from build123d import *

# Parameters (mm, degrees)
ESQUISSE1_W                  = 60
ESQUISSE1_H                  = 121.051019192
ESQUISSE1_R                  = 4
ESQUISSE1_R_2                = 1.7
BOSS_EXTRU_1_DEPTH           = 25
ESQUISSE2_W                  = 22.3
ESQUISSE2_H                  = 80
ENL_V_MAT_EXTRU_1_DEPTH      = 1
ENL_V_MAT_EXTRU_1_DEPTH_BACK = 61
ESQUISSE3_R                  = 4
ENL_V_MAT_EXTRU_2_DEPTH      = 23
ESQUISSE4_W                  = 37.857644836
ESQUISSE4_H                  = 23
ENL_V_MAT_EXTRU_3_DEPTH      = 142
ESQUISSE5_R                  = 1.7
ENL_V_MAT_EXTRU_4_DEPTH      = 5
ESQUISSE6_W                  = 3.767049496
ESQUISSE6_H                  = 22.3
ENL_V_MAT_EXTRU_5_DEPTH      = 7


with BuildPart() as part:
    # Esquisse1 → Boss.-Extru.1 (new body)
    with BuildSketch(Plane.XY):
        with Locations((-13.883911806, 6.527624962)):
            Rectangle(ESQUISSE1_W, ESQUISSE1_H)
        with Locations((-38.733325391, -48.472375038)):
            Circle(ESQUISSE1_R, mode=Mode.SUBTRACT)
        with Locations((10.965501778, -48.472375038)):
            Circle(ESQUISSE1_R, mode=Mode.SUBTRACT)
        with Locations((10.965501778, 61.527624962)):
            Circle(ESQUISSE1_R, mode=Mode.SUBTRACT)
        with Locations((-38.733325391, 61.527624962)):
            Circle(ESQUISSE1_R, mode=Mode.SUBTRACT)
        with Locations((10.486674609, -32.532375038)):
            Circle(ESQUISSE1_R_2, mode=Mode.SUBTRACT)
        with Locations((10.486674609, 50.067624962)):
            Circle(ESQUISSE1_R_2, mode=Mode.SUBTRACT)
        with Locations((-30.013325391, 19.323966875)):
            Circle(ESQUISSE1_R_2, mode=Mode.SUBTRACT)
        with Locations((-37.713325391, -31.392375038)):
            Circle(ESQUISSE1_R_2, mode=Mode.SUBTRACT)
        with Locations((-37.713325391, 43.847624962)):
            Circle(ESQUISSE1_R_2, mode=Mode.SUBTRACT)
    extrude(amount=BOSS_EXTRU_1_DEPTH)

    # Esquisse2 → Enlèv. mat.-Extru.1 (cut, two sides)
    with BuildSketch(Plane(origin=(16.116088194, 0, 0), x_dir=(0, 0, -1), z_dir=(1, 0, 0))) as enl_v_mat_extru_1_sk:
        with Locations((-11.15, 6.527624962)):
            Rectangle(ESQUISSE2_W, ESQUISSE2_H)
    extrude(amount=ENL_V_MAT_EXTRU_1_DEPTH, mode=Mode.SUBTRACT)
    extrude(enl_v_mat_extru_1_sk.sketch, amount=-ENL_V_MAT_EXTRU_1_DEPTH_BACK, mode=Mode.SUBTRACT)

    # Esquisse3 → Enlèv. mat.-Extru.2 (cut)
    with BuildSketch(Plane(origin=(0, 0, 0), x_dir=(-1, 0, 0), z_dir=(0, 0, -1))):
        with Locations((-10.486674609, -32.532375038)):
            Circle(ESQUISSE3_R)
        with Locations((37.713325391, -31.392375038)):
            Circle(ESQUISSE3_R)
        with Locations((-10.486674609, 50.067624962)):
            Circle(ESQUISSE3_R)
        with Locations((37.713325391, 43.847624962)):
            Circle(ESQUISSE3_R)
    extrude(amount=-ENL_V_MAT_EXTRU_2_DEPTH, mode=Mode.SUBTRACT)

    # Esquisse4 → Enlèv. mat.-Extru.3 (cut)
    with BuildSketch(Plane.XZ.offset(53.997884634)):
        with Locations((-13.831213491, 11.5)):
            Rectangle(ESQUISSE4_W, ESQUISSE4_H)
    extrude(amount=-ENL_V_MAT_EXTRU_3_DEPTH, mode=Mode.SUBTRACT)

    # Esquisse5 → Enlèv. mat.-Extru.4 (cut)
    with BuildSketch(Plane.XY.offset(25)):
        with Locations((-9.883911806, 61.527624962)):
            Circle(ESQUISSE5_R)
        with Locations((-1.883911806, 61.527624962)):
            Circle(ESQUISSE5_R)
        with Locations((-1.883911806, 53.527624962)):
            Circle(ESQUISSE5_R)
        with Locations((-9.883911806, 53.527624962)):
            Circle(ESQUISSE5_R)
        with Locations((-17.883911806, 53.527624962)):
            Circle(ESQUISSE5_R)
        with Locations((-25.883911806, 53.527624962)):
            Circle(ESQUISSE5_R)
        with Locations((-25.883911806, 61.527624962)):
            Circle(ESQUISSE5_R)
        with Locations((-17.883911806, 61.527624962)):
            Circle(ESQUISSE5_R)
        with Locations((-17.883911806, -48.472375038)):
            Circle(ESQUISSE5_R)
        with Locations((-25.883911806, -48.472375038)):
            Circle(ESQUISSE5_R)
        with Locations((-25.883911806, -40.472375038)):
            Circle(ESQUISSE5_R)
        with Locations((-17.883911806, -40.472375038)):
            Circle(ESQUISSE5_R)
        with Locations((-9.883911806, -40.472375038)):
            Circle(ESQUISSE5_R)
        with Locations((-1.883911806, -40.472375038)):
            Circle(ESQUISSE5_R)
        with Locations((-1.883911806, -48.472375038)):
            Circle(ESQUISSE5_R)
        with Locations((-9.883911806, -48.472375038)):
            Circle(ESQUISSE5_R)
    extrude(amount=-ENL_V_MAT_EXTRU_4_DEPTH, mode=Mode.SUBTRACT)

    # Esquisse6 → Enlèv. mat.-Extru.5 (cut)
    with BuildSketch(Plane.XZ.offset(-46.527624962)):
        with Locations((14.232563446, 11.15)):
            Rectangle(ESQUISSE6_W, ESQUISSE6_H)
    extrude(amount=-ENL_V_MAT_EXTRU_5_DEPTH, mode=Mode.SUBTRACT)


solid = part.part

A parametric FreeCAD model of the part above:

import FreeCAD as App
import Part
import Sketcher
Q = App.Units.Quantity


def add_polygon(sketch, points):
    """Adds a closed chain of lines whose ends are joined by coincident constraints."""
    first, n = sketch.GeometryCount, len(points)
    for a, b in zip(points, points[1:] + points[:1]):
        sketch.addGeometry(Part.LineSegment(App.Vector(*a, 0), App.Vector(*b, 0)), False)
    for i in range(n):
        sketch.addConstraint(Sketcher.Constraint("Coincident", first + i, 2, first + (i + 1) % n, 1))

doc = App.newDocument("Part")
body = doc.addObject("PartDesign::Body", "Body")

# Sketch on XY plane
sketch1 = body.newObject("Sketcher::SketchObject", "Sketch")
sketch1.AttachmentSupport = (doc.getObject("XY_Plane"), [""])
sketch1.MapMode = "FlatFace"
add_polygon(sketch1, [(-43.9, 67.1), (-43.9, -54), (16.1, -54), (16.1, 67.1)])  # lines 0-3
sketch1.addGeometry(Part.Circle(App.Vector(-38.7, -48.5, 0), App.Vector(0, 0, 1), 4), False)  # 4
sketch1.addGeometry(Part.Circle(App.Vector(-37.7, -31.4, 0), App.Vector(0, 0, 1), 1.7), False)  # 5
sketch1.addGeometry(Part.Circle(App.Vector(11, -48.5, 0), App.Vector(0, 0, 1), 4), False)  # 6
sketch1.addGeometry(Part.Circle(App.Vector(10.5, -32.5, 0), App.Vector(0, 0, 1), 1.7), False)  # 7
sketch1.addGeometry(Part.Circle(App.Vector(-30, 19.3, 0), App.Vector(0, 0, 1), 1.7), False)  # 8
sketch1.addGeometry(Part.Circle(App.Vector(-37.7, 43.8, 0), App.Vector(0, 0, 1), 1.7), False)  # 9
sketch1.addGeometry(Part.Circle(App.Vector(-38.7, 61.5, 0), App.Vector(0, 0, 1), 4), False)  # 10
sketch1.addGeometry(Part.Circle(App.Vector(10.5, 50.1, 0), App.Vector(0, 0, 1), 1.7), False)  # 11
sketch1.addGeometry(Part.Circle(App.Vector(11, 61.5, 0), App.Vector(0, 0, 1), 4), False)  # 12
sketch1.addConstraint(Sketcher.Constraint("Vertical", 0))
sketch1.addConstraint(Sketcher.Constraint("Horizontal", 1))
sketch1.addConstraint(Sketcher.Constraint("Vertical", 2))
sketch1.addConstraint(Sketcher.Constraint("Horizontal", 3))
sketch1.addConstraint(Sketcher.Constraint("Equal", 4, 6))
sketch1.addConstraint(Sketcher.Constraint("Equal", 5, 7))
sketch1.addConstraint(Sketcher.Constraint("Equal", 7, 8))
sketch1.addConstraint(Sketcher.Constraint("Equal", 8, 9))
sketch1.addConstraint(Sketcher.Constraint("Equal", 6, 10))
sketch1.addConstraint(Sketcher.Constraint("Equal", 9, 11))
sketch1.addConstraint(Sketcher.Constraint("Equal", 10, 12))
sketch1.addConstraint(Sketcher.Constraint("Horizontal", 4, 3, 6, 3))
sketch1.addConstraint(Sketcher.Constraint("Horizontal", 10, 3, 12, 3))
sketch1.addConstraint(Sketcher.Constraint("Vertical", 5, 3, 9, 3))
sketch1.addConstraint(Sketcher.Constraint("Vertical", 4, 3, 10, 3))
sketch1.addConstraint(Sketcher.Constraint("Vertical", 7, 3, 11, 3))
sketch1.addConstraint(Sketcher.Constraint("Vertical", 6, 3, 12, 3))
sketch1.addConstraint(Sketcher.Constraint("Diameter", 4, Q("8 mm")))
sketch1.addConstraint(Sketcher.Constraint("Diameter", 5, Q("3.4 mm")))
sketch1.addConstraint(Sketcher.Constraint("DistanceX", 1, 1, 1, 2, Q("60 mm")))
sketch1.addConstraint(Sketcher.Constraint("DistanceY", 4, 3, 10, 3, Q("110 mm")))
sketch1.addConstraint(Sketcher.Constraint("DistanceX", 5, 3, 7, 3, Q("48.2 mm")))
sketch1.addConstraint(Sketcher.Constraint("DistanceX", 5, 3, 8, 3, Q("7.7 mm")))
sketch1.addConstraint(Sketcher.Constraint("DistanceY", 7, 3, 11, 3, Q("82.6 mm")))
sketch1.addConstraint(Sketcher.Constraint("DistanceX", 4, 3, 5, 3, Q("1.02 mm")))
sketch1.addConstraint(Sketcher.Constraint("DistanceY", 4, 3, 5, 3, Q("17.08 mm")))
sketch1.addConstraint(Sketcher.Constraint("DistanceY", 6, 3, 7, 3, Q("15.94 mm")))
sketch1.addConstraint(Sketcher.Constraint("DistanceY", 5, 3, 9, 3, Q("75.24 mm")))
sketch1.addConstraint(Sketcher.Constraint("DistanceY", 0, 2, 0, 1, Q("121.051019 mm")))
sketch1.addConstraint(Sketcher.Constraint("DistanceX", -1, 1, 6, 3, Q("10.965502 mm")))
sketch1.addConstraint(Sketcher.Constraint("DistanceX", 0, 2, -1, 1, Q("43.883912 mm")))
sketch1.addConstraint(Sketcher.Constraint("DistanceY", 5, 3, 8, 3, Q("50.716342 mm")))
sketch1.addConstraint(Sketcher.Constraint("DistanceY", 0, 2, 4, 3, Q("5.52551 mm")))
sketch1.addConstraint(Sketcher.Constraint("DistanceX", 4, 3, -1, 1, Q("38.733325 mm")))
sketch1.addConstraint(Sketcher.Constraint("DistanceY", 4, 3, -1, 1, Q("48.472375 mm")))
pad1 = body.newObject("PartDesign::Pad", "Pad")
pad1.Profile = sketch1
pad1.Length = 25

# Sketch on YZ plane
sketch2 = body.newObject("Sketcher::SketchObject", "Sketch001")
sketch2.AttachmentSupport = (doc.getObject("YZ_Plane"), [""])
sketch2.MapMode = "FlatFace"
sketch2.AttachmentOffset = App.Placement(App.Vector(0, 0, 16.116088), App.Rotation())
add_polygon(sketch2, [(47, 22), (-33, 22), (-33, 0), (47, 0)])  # lines 0-3
sketch2.addConstraint(Sketcher.Constraint("Horizontal", 0))
sketch2.addConstraint(Sketcher.Constraint("Vertical", 1))
sketch2.addConstraint(Sketcher.Constraint("Horizontal", 2))
sketch2.addConstraint(Sketcher.Constraint("Vertical", 3))
sketch2.addConstraint(Sketcher.Constraint("PointOnObject", 1, 2, -1))
sketch2.addConstraint(Sketcher.Constraint("DistanceX", 0, 2, 0, 1, Q("80 mm")))
sketch2.addConstraint(Sketcher.Constraint("DistanceY", 1, 2, 1, 1, Q("22.3 mm")))
sketch2.addConstraint(Sketcher.Constraint("DistanceX", 0, 2, -1, 1, Q("33.472375 mm")))
pocket1 = body.newObject("PartDesign::Pocket", "Pocket")
pocket1.Profile = sketch2
pocket1.Type = "ThroughAll"
pocket1.Midplane = True

# Sketch on XY plane
sketch3 = body.newObject("Sketcher::SketchObject", "Sketch002")
sketch3.AttachmentSupport = (doc.getObject("XY_Plane"), [""])
sketch3.MapMode = "FlatFace"
sketch3.addGeometry(Part.Circle(App.Vector(10.5, -32.5, 0), App.Vector(0, 0, 1), 4), False)
sketch3.addGeometry(Part.Circle(App.Vector(-37.7, -31.4, 0), App.Vector(0, 0, 1), 4), False)
sketch3.addGeometry(Part.Circle(App.Vector(10.5, 50.1, 0), App.Vector(0, 0, 1), 4), False)
sketch3.addGeometry(Part.Circle(App.Vector(-37.7, 43.8, 0), App.Vector(0, 0, 1), 4), False)
sketch3.addConstraint(Sketcher.Constraint("Equal", 0, 1))
sketch3.addConstraint(Sketcher.Constraint("Equal", 1, 2))
sketch3.addConstraint(Sketcher.Constraint("Equal", 2, 3))
sketch3.addConstraint(Sketcher.Constraint("Vertical", 0, 3, 2, 3))
sketch3.addConstraint(Sketcher.Constraint("Vertical", 1, 3, 3, 3))
sketch3.addConstraint(Sketcher.Constraint("Diameter", 0, Q("8 mm")))
sketch3.addConstraint(Sketcher.Constraint("DistanceX", 1, 3, 0, 3, Q("48.2 mm")))
sketch3.addConstraint(Sketcher.Constraint("DistanceY", 0, 3, 2, 3, Q("82.6 mm")))
sketch3.addConstraint(Sketcher.Constraint("DistanceY", 0, 3, 1, 3, Q("1.14 mm")))
sketch3.addConstraint(Sketcher.Constraint("DistanceY", 3, 3, 2, 3, Q("6.22 mm")))
sketch3.addConstraint(Sketcher.Constraint("DistanceX", -1, 1, 0, 3, Q("10.486675 mm")))
sketch3.addConstraint(Sketcher.Constraint("DistanceY", 0, 3, -1, 1, Q("32.532375 mm")))
pocket2 = body.newObject("PartDesign::Pocket", "Pocket001")
pocket2.Profile = sketch3
pocket2.Length = 23
pocket2.Reversed = True

# Sketch on XZ plane
sketch4 = body.newObject("Sketcher::SketchObject", "Sketch003")
sketch4.AttachmentSupport = (doc.getObject("XZ_Plane"), [""])
sketch4.MapMode = "FlatFace"
sketch4.AttachmentOffset = App.Placement(App.Vector(0, 0, 53.997885), App.Rotation())
add_polygon(sketch4, [(-33, 23), (-33, 0), (5, 0), (5, 23)])  # lines 0-3
sketch4.addConstraint(Sketcher.Constraint("Vertical", 0))
sketch4.addConstraint(Sketcher.Constraint("Horizontal", 1))
sketch4.addConstraint(Sketcher.Constraint("Vertical", 2))
sketch4.addConstraint(Sketcher.Constraint("Horizontal", 3))
sketch4.addConstraint(Sketcher.Constraint("PointOnObject", 0, 2, -1))
sketch4.addConstraint(Sketcher.Constraint("DistanceY", 0, 2, 0, 1, Q("23 mm")))
sketch4.addConstraint(Sketcher.Constraint("DistanceX", 1, 1, 1, 2, Q("37.857645 mm")))
sketch4.addConstraint(Sketcher.Constraint("DistanceX", -1, 1, 1, 2, Q("5.097609 mm")))
pocket3 = body.newObject("PartDesign::Pocket", "Pocket002")
pocket3.Profile = sketch4
pocket3.Length = 142

# Sketch on XY plane
sketch5 = body.newObject("Sketcher::SketchObject", "Sketch004")
sketch5.AttachmentSupport = (doc.getObject("XY_Plane"), [""])
sketch5.MapMode = "FlatFace"
sketch5.AttachmentOffset = App.Placement(App.Vector(0, 0, 25), App.Rotation())
sketch5.addGeometry(Part.Circle(App.Vector(-9.9, 61.5, 0), App.Vector(0, 0, 1), 1.7), False)
sketch5.addGeometry(Part.Circle(App.Vector(-1.9, 61.5, 0), App.Vector(0, 0, 1), 1.7), False)
sketch5.addGeometry(Part.Circle(App.Vector(-1.9, 53.5, 0), App.Vector(0, 0, 1), 1.7), False)
sketch5.addGeometry(Part.Circle(App.Vector(-9.9, 53.5, 0), App.Vector(0, 0, 1), 1.7), False)
sketch5.addGeometry(Part.Circle(App.Vector(-17.9, 53.5, 0), App.Vector(0, 0, 1), 1.7), False)
sketch5.addGeometry(Part.Circle(App.Vector(-25.9, 53.5, 0), App.Vector(0, 0, 1), 1.7), False)
sketch5.addGeometry(Part.Circle(App.Vector(-25.9, 61.5, 0), App.Vector(0, 0, 1), 1.7), False)
sketch5.addGeometry(Part.Circle(App.Vector(-17.9, 61.5, 0), App.Vector(0, 0, 1), 1.7), False)
sketch5.addGeometry(Part.Circle(App.Vector(-17.9, -48.5, 0), App.Vector(0, 0, 1), 1.7), False)
sketch5.addGeometry(Part.Circle(App.Vector(-25.9, -48.5, 0), App.Vector(0, 0, 1), 1.7), False)
sketch5.addGeometry(Part.Circle(App.Vector(-25.9, -40.5, 0), App.Vector(0, 0, 1), 1.7), False)
sketch5.addGeometry(Part.Circle(App.Vector(-17.9, -40.5, 0), App.Vector(0, 0, 1), 1.7), False)
sketch5.addGeometry(Part.Circle(App.Vector(-9.9, -40.5, 0), App.Vector(0, 0, 1), 1.7), False)
sketch5.addGeometry(Part.Circle(App.Vector(-1.9, -40.5, 0), App.Vector(0, 0, 1), 1.7), False)
sketch5.addGeometry(Part.Circle(App.Vector(-1.9, -48.5, 0), App.Vector(0, 0, 1), 1.7), False)
sketch5.addGeometry(Part.Circle(App.Vector(-9.9, -48.5, 0), App.Vector(0, 0, 1), 1.7), False)
sketch5.addConstraint(Sketcher.Constraint("Equal", 0, 1))
sketch5.addConstraint(Sketcher.Constraint("Equal", 1, 2))
sketch5.addConstraint(Sketcher.Constraint("Equal", 2, 3))
sketch5.addConstraint(Sketcher.Constraint("Equal", 3, 4))
sketch5.addConstraint(Sketcher.Constraint("Equal", 4, 5))
sketch5.addConstraint(Sketcher.Constraint("Equal", 5, 6))
sketch5.addConstraint(Sketcher.Constraint("Equal", 6, 7))
sketch5.addConstraint(Sketcher.Constraint("Equal", 7, 8))
sketch5.addConstraint(Sketcher.Constraint("Equal", 8, 9))
sketch5.addConstraint(Sketcher.Constraint("Equal", 9, 10))
sketch5.addConstraint(Sketcher.Constraint("Equal", 10, 11))
sketch5.addConstraint(Sketcher.Constraint("Equal", 11, 12))
sketch5.addConstraint(Sketcher.Constraint("Equal", 12, 13))
sketch5.addConstraint(Sketcher.Constraint("Equal", 13, 14))
sketch5.addConstraint(Sketcher.Constraint("Equal", 14, 15))
sketch5.addConstraint(Sketcher.Constraint("Horizontal", 0, 3, 1, 3))
sketch5.addConstraint(Sketcher.Constraint("Horizontal", 2, 3, 3, 3))
sketch5.addConstraint(Sketcher.Constraint("Horizontal", 3, 3, 4, 3))
sketch5.addConstraint(Sketcher.Constraint("Horizontal", 4, 3, 5, 3))
sketch5.addConstraint(Sketcher.Constraint("Horizontal", 1, 3, 6, 3))
sketch5.addConstraint(Sketcher.Constraint("Horizontal", 6, 3, 7, 3))
sketch5.addConstraint(Sketcher.Constraint("Horizontal", 8, 3, 9, 3))
sketch5.addConstraint(Sketcher.Constraint("Horizontal", 10, 3, 11, 3))
sketch5.addConstraint(Sketcher.Constraint("Horizontal", 11, 3, 12, 3))
sketch5.addConstraint(Sketcher.Constraint("Horizontal", 12, 3, 13, 3))
sketch5.addConstraint(Sketcher.Constraint("Horizontal", 9, 3, 14, 3))
sketch5.addConstraint(Sketcher.Constraint("Horizontal", 14, 3, 15, 3))
sketch5.addConstraint(Sketcher.Constraint("Vertical", 1, 3, 2, 3))
sketch5.addConstraint(Sketcher.Constraint("Vertical", 0, 3, 3, 3))
sketch5.addConstraint(Sketcher.Constraint("Vertical", 5, 3, 6, 3))
sketch5.addConstraint(Sketcher.Constraint("Vertical", 4, 3, 7, 3))
sketch5.addConstraint(Sketcher.Constraint("Vertical", 7, 3, 8, 3))
sketch5.addConstraint(Sketcher.Constraint("Vertical", 6, 3, 9, 3))
sketch5.addConstraint(Sketcher.Constraint("Vertical", 9, 3, 10, 3))
sketch5.addConstraint(Sketcher.Constraint("Vertical", 8, 3, 11, 3))
sketch5.addConstraint(Sketcher.Constraint("Vertical", 3, 3, 12, 3))
sketch5.addConstraint(Sketcher.Constraint("Vertical", 2, 3, 13, 3))
sketch5.addConstraint(Sketcher.Constraint("Vertical", 13, 3, 14, 3))
sketch5.addConstraint(Sketcher.Constraint("Vertical", 12, 3, 15, 3))
sketch5.addConstraint(Sketcher.Constraint("Diameter", 0, Q("3.4 mm")))
sketch5.addConstraint(Sketcher.Constraint("DistanceX", 0, 3, 1, 3, Q("8 mm")))
sketch5.addConstraint(Sketcher.Constraint("DistanceY", 2, 3, 1, 3, Q("8 mm")))
sketch5.addConstraint(Sketcher.Constraint("DistanceX", 4, 3, 3, 3, Q("8 mm")))
sketch5.addConstraint(Sketcher.Constraint("DistanceX", 5, 3, 4, 3, Q("8 mm")))
sketch5.addConstraint(Sketcher.Constraint("DistanceY", 8, 3, 4, 3, Q("102 mm")))
sketch5.addConstraint(Sketcher.Constraint("DistanceY", 9, 3, 10, 3, Q("8 mm")))
sketch5.addConstraint(Sketcher.Constraint("DistanceX", 0, 3, -1, 1, Q("9.883912 mm")))
sketch5.addConstraint(Sketcher.Constraint("DistanceY", -1, 1, 0, 3, Q("61.527625 mm")))
pocket4 = body.newObject("PartDesign::Pocket", "Pocket003")
pocket4.Profile = sketch5
pocket4.Length = 5

# Sketch on XZ plane
sketch6 = body.newObject("Sketcher::SketchObject", "Sketch005")
sketch6.AttachmentSupport = (doc.getObject("XZ_Plane"), [""])
sketch6.MapMode = "FlatFace"
sketch6.AttachmentOffset = App.Placement(App.Vector(0, 0, -46.527625), App.Rotation())
add_polygon(sketch6, [(12.3, 22.3), (12.3, 0), (16.1, 0), (16.1, 22.3)])  # lines 0-3
sketch6.addConstraint(Sketcher.Constraint("Vertical", 0))
sketch6.addConstraint(Sketcher.Constraint("Horizontal", 1))
sketch6.addConstraint(Sketcher.Constraint("Vertical", 2))
sketch6.addConstraint(Sketcher.Constraint("Horizontal", 3))
sketch6.addConstraint(Sketcher.Constraint("PointOnObject", 0, 2, -1))
sketch6.addConstraint(Sketcher.Constraint("DistanceY", 0, 2, 0, 1, Q("22.3 mm")))
sketch6.addConstraint(Sketcher.Constraint("DistanceX", 1, 1, 1, 2, Q("3.767049 mm")))
sketch6.addConstraint(Sketcher.Constraint("DistanceX", -1, 1, 0, 2, Q("12.349039 mm")))
pocket5 = body.newObject("PartDesign::Pocket", "Pocket004")
pocket5.Profile = sketch6
pocket5.Length = 7

doc.recompute()
